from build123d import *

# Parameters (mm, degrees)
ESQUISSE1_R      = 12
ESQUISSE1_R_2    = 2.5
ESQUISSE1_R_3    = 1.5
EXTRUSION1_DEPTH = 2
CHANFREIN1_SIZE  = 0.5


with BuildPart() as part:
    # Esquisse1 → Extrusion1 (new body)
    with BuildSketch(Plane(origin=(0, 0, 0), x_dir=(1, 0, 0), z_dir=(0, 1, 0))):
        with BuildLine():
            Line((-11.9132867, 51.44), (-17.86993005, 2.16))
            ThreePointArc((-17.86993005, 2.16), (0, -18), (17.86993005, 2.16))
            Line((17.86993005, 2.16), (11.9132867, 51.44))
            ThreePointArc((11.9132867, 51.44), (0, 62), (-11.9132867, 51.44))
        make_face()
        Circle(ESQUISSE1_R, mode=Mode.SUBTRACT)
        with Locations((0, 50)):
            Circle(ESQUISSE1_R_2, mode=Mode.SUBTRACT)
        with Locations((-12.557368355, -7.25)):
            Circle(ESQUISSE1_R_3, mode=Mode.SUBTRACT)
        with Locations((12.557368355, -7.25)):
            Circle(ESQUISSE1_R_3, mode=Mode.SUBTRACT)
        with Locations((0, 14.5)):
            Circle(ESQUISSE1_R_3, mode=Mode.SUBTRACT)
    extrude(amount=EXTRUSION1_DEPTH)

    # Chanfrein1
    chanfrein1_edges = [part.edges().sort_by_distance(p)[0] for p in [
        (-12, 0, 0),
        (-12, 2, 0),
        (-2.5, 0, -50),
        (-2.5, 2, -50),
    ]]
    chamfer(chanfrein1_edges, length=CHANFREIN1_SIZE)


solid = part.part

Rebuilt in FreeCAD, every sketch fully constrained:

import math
import FreeCAD as App
import Part
import Sketcher

V = App.Vector
Q = App.Units.Quantity


def edges_at(feature, points):
    """Names of the edges that pass closest to the given points."""
    edges = feature.Shape.Edges
    near = lambda p: min(range(len(edges)), key=lambda i: edges[i].distToShape(Part.Vertex(*p))[0])
    return sorted({f"Edge{near(p) + 1}" for p in points})

doc = App.newDocument("Part")
params = doc.addObject("Spreadsheet::Sheet", "Params")
for row, (alias, value) in enumerate([
    ("sketch1_diameter", "3 mm"),
    ("sketch1_diameter2", "24 mm"),
    ("sketch1_diameter3", "5 mm"),
    ("sketch1_radius", "18 mm"),
    ("pad1_length", "2 mm"),
    ("chamfer_size", "0.5 mm"),
], start=1):
    params.set(f"A{row}", alias)
    params.set(f"B{row}", "=" + value)
    params.setAlias(f"B{row}", alias)

body = doc.addObject("PartDesign::Body", "Body")

sketch1 = body.newObject("Sketcher::SketchObject", "Sketch")
sketch1.AttachmentSupport = (doc.getObject("XZ_Plane"), [""])
sketch1.MapMode = "FlatFace"
sketch1.addGeometry(Part.LineSegment(V(-11.913287, -51.44, 0), V(-17.86993, -2.16, 0)), False)
sketch1.addGeometry(Part.ArcOfCircle(Part.Circle(V(0, 0, 0), V(0, 0, 1), 18), math.radians(-6.892103), math.radians(186.892103)), False)
sketch1.addGeometry(Part.LineSegment(V(17.86993, -2.16, 0), V(11.913287, -51.44, 0)), False)
sketch1.addGeometry(Part.ArcOfCircle(Part.Circle(V(0, -50, 0), V(0, 0, 1), 12), math.radians(-173.107897), math.radians(-6.892103)), False)
sketch1.addGeometry(Part.Circle(V(-12.557368, 7.25, 0), V(0, 0, 1), 1.5), False)
sketch1.addGeometry(Part.Circle(V(0, 0, 0), V(0, 0, 1), 12), False)
sketch1.addGeometry(Part.Circle(V(12.557368, 7.25, 0), V(0, 0, 1), 1.5), False)
sketch1.addGeometry(Part.Circle(V(0, -14.5, 0), V(0, 0, 1), 1.5), False)
sketch1.addGeometry(Part.Circle(V(0, -50, 0), V(0, 0, 1), 2.5), False)
sketch1.addConstraint(Sketcher.Constraint("Tangent", 0, 2, 1, 2))
sketch1.addConstraint(Sketcher.Constraint("Tangent", 1, 1, 2, 1))
sketch1.addConstraint(Sketcher.Constraint("Tangent", 2, 2, 3, 2))
sketch1.addConstraint(Sketcher.Constraint("Tangent", 3, 1, 0, 1))
sketch1.addConstraint(Sketcher.Constraint("Coincident", 1, 3, -1, 1))
sketch1.addConstraint(Sketcher.Constraint("Coincident", 5, 3, -1, 1))
sketch1.addConstraint(Sketcher.Constraint("Coincident", 8, 3, 3, 3))
sketch1.addConstraint(Sketcher.Constraint("Equal", 3, 5))
sketch1.addConstraint(Sketcher.Constraint("Equal", 4, 6))
sketch1.addConstraint(Sketcher.Constraint("Equal", 6, 7))
sketch1.addConstraint(Sketcher.Constraint("Symmetric", 4, 3, 6, 3, -2))
sketch1.addConstraint(Sketcher.Constraint("PointOnObject", 3, 3, -2))
sketch1.addConstraint(Sketcher.Constraint("PointOnObject", 7, 3, -2))
sketch1.addConstraint(Sketcher.Constraint("Diameter", 4, Q("3 mm")))
sketch1.addConstraint(Sketcher.Constraint("Diameter", 5, Q("24 mm")))
sketch1.addConstraint(Sketcher.Constraint("Diameter", 8, Q("5 mm")))
sketch1.addConstraint(Sketcher.Constraint("Radius", 1, Q("18 mm")))
sketch1.addConstraint(Sketcher.Constraint("DistanceY", 3, 3, -1, 1, Q("50 mm")))
sketch1.addConstraint(Sketcher.Constraint("DistanceY", 7, 3, -1, 1, Q("14.5 mm")))
sketch1.addConstraint(Sketcher.Constraint("DistanceY", -1, 1, 4, 3, Q("7.25 mm")))
sketch1.addConstraint(Sketcher.Constraint("DistanceX", 0, 2, 6, 3, Q("30.427298 mm")))
sketch1.setExpression("Constraints[13]", "Params.sketch1_diameter")
sketch1.setExpression("Constraints[14]", "Params.sketch1_diameter2")
sketch1.setExpression("Constraints[15]", "Params.sketch1_diameter3")
sketch1.setExpression("Constraints[16]", "Params.sketch1_radius")
pad1 = body.newObject("PartDesign::Pad", "Pad")
pad1.Profile = sketch1
pad1.setExpression("Length", "Params.pad1_length")
pad1.Reversed = True
doc.recompute()

chamfer = body.newObject("PartDesign::Chamfer", "Chamfer")
chamfer.Base = (pad1, edges_at(pad1, [
    (-12, 0, 0),
    (-12, 2, 0),
    (-2.5, 0, -50),
    (-2.5, 2, -50),
]))
chamfer.setExpression("Size", "Params.chamfer_size")

doc.recompute()
